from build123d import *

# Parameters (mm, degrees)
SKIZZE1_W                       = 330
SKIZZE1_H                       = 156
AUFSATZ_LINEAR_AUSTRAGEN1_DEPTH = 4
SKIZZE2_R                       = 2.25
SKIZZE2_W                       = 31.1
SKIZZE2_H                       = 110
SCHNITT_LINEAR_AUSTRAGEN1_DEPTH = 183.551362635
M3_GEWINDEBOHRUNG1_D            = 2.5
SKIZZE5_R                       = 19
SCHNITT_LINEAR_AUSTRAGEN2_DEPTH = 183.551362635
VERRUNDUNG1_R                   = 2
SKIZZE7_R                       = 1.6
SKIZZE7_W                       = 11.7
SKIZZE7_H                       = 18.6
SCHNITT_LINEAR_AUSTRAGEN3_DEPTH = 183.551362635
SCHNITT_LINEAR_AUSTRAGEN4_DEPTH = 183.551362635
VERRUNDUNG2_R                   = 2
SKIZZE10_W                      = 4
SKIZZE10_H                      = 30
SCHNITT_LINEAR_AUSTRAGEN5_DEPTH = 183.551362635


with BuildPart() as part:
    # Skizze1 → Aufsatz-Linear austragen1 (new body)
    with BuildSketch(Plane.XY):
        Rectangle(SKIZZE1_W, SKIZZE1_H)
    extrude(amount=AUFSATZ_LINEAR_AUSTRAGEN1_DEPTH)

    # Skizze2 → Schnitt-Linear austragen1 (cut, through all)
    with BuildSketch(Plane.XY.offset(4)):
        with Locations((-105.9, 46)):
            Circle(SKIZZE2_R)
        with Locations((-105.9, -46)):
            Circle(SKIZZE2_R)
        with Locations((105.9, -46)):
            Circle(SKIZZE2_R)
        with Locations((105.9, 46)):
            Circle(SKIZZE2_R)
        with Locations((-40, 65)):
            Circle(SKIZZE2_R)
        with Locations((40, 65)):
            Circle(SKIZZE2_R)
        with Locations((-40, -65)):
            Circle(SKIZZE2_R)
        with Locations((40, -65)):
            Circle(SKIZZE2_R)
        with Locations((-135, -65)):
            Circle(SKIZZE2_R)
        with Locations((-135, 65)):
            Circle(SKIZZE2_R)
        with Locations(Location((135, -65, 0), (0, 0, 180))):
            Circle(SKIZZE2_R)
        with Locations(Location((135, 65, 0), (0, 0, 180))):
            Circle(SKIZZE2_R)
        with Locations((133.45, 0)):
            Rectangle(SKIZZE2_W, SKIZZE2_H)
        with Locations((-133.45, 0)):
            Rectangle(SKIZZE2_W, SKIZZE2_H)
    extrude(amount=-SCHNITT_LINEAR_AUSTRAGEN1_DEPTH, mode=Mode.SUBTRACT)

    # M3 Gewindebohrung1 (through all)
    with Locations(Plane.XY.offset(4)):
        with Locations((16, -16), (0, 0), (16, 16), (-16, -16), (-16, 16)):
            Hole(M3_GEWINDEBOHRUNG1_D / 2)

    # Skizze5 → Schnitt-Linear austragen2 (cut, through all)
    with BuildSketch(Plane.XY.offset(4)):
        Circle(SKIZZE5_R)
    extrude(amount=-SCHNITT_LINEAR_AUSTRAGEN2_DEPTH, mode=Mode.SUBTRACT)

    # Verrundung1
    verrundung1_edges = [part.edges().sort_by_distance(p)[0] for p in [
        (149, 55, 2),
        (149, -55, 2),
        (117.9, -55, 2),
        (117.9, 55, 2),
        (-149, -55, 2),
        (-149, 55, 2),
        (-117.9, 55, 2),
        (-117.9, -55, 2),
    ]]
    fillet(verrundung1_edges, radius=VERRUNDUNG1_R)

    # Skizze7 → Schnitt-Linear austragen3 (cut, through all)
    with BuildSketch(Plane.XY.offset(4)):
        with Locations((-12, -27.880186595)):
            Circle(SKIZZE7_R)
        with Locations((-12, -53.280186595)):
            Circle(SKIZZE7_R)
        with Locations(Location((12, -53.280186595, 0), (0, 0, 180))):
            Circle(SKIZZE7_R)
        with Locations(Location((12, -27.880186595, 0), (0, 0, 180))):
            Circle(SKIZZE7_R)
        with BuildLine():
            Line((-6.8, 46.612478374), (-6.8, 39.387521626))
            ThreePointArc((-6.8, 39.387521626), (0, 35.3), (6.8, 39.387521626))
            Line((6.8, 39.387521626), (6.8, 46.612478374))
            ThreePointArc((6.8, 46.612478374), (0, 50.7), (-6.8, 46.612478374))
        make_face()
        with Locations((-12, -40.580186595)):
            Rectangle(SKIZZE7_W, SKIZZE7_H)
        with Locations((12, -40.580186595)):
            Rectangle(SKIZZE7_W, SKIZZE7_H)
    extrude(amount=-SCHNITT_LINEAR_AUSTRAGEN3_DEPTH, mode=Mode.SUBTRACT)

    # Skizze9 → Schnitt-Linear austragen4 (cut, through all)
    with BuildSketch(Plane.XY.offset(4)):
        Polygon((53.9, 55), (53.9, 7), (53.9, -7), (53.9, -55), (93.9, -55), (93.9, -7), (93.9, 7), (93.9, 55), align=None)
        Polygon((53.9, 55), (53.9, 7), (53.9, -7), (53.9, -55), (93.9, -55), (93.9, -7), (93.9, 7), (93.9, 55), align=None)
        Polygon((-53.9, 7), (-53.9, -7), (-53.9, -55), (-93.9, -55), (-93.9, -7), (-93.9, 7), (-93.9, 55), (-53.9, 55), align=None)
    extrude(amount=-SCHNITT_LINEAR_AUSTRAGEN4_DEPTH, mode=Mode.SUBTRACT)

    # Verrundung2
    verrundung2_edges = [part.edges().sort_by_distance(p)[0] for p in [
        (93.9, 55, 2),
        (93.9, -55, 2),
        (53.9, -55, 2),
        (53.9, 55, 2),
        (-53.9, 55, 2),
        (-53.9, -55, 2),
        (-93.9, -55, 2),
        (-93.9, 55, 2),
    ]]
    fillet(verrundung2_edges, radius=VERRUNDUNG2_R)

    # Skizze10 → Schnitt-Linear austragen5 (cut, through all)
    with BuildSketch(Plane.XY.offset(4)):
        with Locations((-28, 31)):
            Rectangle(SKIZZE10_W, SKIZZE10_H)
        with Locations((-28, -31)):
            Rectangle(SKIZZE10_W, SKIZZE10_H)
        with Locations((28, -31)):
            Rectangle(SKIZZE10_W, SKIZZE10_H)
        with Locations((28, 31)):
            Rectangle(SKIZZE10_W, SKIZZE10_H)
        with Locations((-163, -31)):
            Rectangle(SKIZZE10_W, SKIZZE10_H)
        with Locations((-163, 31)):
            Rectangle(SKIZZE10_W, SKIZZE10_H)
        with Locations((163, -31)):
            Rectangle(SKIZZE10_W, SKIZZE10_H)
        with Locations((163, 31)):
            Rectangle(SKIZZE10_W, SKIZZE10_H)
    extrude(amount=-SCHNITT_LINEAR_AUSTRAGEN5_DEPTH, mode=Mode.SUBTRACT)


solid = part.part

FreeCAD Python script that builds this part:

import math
import FreeCAD as App
import Part
import Sketcher

V = App.Vector
Q = App.Units.Quantity


def edges_at(feature, points):
    """Names of the edges that pass closest to the given points."""
    edges = feature.Shape.Edges
    near = lambda p: min(range(len(edges)), key=lambda i: edges[i].distToShape(Part.Vertex(*p))[0])
    return sorted({f"Edge{near(p) + 1}" for p in points})


def add_polygon(sketch, points):
    """Adds a closed chain of lines whose ends are joined by coincident constraints."""
    first, n = sketch.GeometryCount, len(points)
    for a, b in zip(points, points[1:] + points[:1]):
        sketch.addGeometry(Part.LineSegment(App.Vector(*a, 0), App.Vector(*b, 0)), False)
    for i in range(n):
        sketch.addConstraint(Sketcher.Constraint("Coincident", first + i, 2, first + (i + 1) % n, 1))

doc = App.newDocument("Part")
params = doc.addObject("Spreadsheet::Sheet", "Params")
for row, (alias, value) in enumerate([
    ("sketch1_width", "330 mm"),
    ("sketch1_height", "156 mm"),
    ("pad1_length", "4 mm"),
    ("sketch2_diameter", "4.5 mm"),
    ("sketch2_height", "110 mm"),
    ("sketch2_width", "31.1 mm"),
    ("sketch3_diameter", "2.5 mm"),
    ("hole_diameter", "2.5 mm"),
    ("sketch4_diameter", "38 mm"),
    ("fillet_radius", "2 mm"),
    ("sketch5_diameter", "3.2 mm"),
    ("sketch5_radius", "7.7 mm"),
    ("sketch5_width", "11.7 mm"),
    ("sketch5_height", "18.6 mm"),
    ("sketch6_width", "40 mm"),
    ("sketch6_height", "110 mm"),
    ("fillet2_radius", "2 mm"),
    ("sketch7_width", "4 mm"),
    ("sketch7_height", "30 mm"),
], start=1):
    params.set(f"A{row}", alias)
    params.set(f"B{row}", "=" + value)
    params.setAlias(f"B{row}", alias)

body = doc.addObject("PartDesign::Body", "Body")

sketch1 = body.newObject("Sketcher::SketchObject", "Sketch")
sketch1.AttachmentSupport = (doc.getObject("XY_Plane"), [""])
sketch1.MapMode = "FlatFace"
add_polygon(sketch1, [(-165, 78), (-165, -78), (165, -78), (165, 78)])
sketch1.addConstraint([
    Sketcher.Constraint("Vertical", 0),
    Sketcher.Constraint("Horizontal", 1),
    Sketcher.Constraint("Vertical", 2),
    Sketcher.Constraint("Horizontal", 3),
    Sketcher.Constraint("Symmetric", 0, 2, 2, 2, -1, 1),
    Sketcher.Constraint("DistanceX", 1, 1, 1, 2, Q("330 mm")),
    Sketcher.Constraint("DistanceY", 0, 2, 0, 1, Q("156 mm")),
])
sketch1.setExpression("Constraints[9]", "Params.sketch1_width")
sketch1.setExpression("Constraints[10]", "Params.sketch1_height")
pad1 = body.newObject("PartDesign::Pad", "Pad")
pad1.Profile = sketch1
pad1.setExpression("Length", "Params.pad1_length")

sketch2 = body.newObject("Sketcher::SketchObject", "Sketch001")
sketch2.AttachmentSupport = (doc.getObject("XY_Plane"), [""])
sketch2.MapMode = "FlatFace"
sketch2.AttachmentOffset = App.Placement(V(0, 0, 4), App.Rotation())
sketch2.addGeometry(Part.Circle(V(-105.9, 46, 0), V(0, 0, 1), 2.2), False)
sketch2.addGeometry(Part.Circle(V(-105.9, -46, 0), V(0, 0, 1), 2.2), False)
sketch2.addGeometry(Part.Circle(V(105.9, -46, 0), V(0, 0, 1), 2.2), False)
sketch2.addGeometry(Part.Circle(V(105.9, 46, 0), V(0, 0, 1), 2.2), False)
sketch2.addGeometry(Part.Circle(V(-40, 65, 0), V(0, 0, 1), 2.2), False)
sketch2.addGeometry(Part.Circle(V(40, 65, 0), V(0, 0, 1), 2.2), False)
sketch2.addGeometry(Part.Circle(V(-40, -65, 0), V(0, 0, 1), 2.2), False)
sketch2.addGeometry(Part.Circle(V(40, -65, 0), V(0, 0, 1), 2.2), False)
sketch2.addGeometry(Part.Circle(V(-135, -65, 0), V(0, 0, 1), 2.2), False)
sketch2.addGeometry(Part.Circle(V(-135, 65, 0), V(0, 0, 1), 2.2), False)
sketch2.addGeometry(Part.Circle(V(135, -65, 0), V(0, 0, 1), 2.2), False)
sketch2.addGeometry(Part.Circle(V(135, 65, 0), V(0, 0, 1), 2.2), False)
add_polygon(sketch2, [(117.9, 55), (117.9, -55), (149, -55), (149, 55)])
add_polygon(sketch2, [(-149, 55), (-149, -55), (-117.9, -55), (-117.9, 55)])
sketch2.addConstraint([
    Sketcher.Constraint("Vertical", 12),
    Sketcher.Constraint("Horizontal", 13),
    Sketcher.Constraint("Vertical", 14),
    Sketcher.Constraint("Horizontal", 15),
    Sketcher.Constraint("Vertical", 16),
    Sketcher.Constraint("Horizontal", 17),
    Sketcher.Constraint("Vertical", 18),
    Sketcher.Constraint("Horizontal", 19),
    Sketcher.Constraint("Equal", 0, 1),
    Sketcher.Constraint("Equal", 1, 2),
    Sketcher.Constraint("Equal", 2, 3),
    Sketcher.Constraint("Equal", 3, 4),
    Sketcher.Constraint("Equal", 4, 5),
    Sketcher.Constraint("Equal", 5, 6),
    Sketcher.Constraint("Equal", 6, 7),
    Sketcher.Constraint("Equal", 7, 8),
    Sketcher.Constraint("Equal", 8, 9),
    Sketcher.Constraint("Equal", 9, 10),
    Sketcher.Constraint("Equal", 10, 11),
    Sketcher.Constraint("Symmetric", 0, 3, 2, 3, -1, 1),
    Sketcher.Constraint("Symmetric", 1, 3, 3, 3, -1, 1),
    Sketcher.Constraint("Symmetric", 5, 3, 6, 3, -1, 1),
    Sketcher.Constraint("Symmetric", 4, 3, 7, 3, -1, 1),
    Sketcher.Constraint("Symmetric", 9, 3, 10, 3, -1, 1),
    Sketcher.Constraint("Symmetric", 8, 3, 11, 3, -1, 1),
    Sketcher.Constraint("Symmetric", 14, 2, 16, 2, -1, 1),
    Sketcher.Constraint("Symmetric", 12, 2, 18, 2, -1, 1),
    Sketcher.Constraint("Symmetric", 1, 3, 2, 3, -2),
    Sketcher.Constraint("Symmetric", 4, 3, 5, 3, -2),
    Sketcher.Constraint("Symmetric", 8, 3, 10, 3, -2),
    Sketcher.Constraint("Horizontal", 7, 3, 8, 3),
    Sketcher.Constraint("Horizontal", 13, 2, 16, 2),
    Sketcher.Constraint("Diameter", 0, Q("4.5 mm")),
    Sketcher.Constraint("DistanceY", 12, 2, 12, 1, Q("110 mm")),
    Sketcher.Constraint("DistanceX", 13, 1, 13, 2, Q("31.1 mm")),
    Sketcher.Constraint("DistanceY", -1, 1, 0, 3, Q("46 mm")),
    Sketcher.Constraint("DistanceX", 4, 3, -1, 1, Q("40 mm")),
    Sketcher.Constraint("DistanceY", -1, 1, 4, 3, Q("65 mm")),
    Sketcher.Constraint("DistanceX", 8, 3, -1, 1, Q("135 mm")),
    Sketcher.Constraint("DistanceX", -1, 1, 13, 2, Q("149 mm")),
    Sketcher.Constraint("DistanceX", 2, 3, 12, 2, Q("12 mm")),
])
sketch2.setExpression("Constraints[40]", "Params.sketch2_diameter")
sketch2.setExpression("Constraints[41]", "Params.sketch2_height")
sketch2.setExpression("Constraints[42]", "Params.sketch2_width")
pocket1 = body.newObject("PartDesign::Pocket", "Pocket")
pocket1.Profile = sketch2
pocket1.Type = "ThroughAll"

sketch3 = body.newObject("Sketcher::SketchObject", "Sketch002")
sketch3.AttachmentSupport = (doc.getObject("XY_Plane"), [""])
sketch3.MapMode = "FlatFace"
sketch3.AttachmentOffset = App.Placement(V(0, 0, 4), App.Rotation())
sketch3.addGeometry([
    Part.Circle(V(16, -16, 0), V(0, 0, 1), 1.2),
    Part.Circle(V(0, 0, 0), V(0, 0, 1), 1.2),
    Part.Circle(V(16, 16, 0), V(0, 0, 1), 1.2),
    Part.Circle(V(-16, -16, 0), V(0, 0, 1), 1.2),
    Part.Circle(V(-16, 16, 0), V(0, 0, 1), 1.2),
], False)
sketch3.addConstraint([
    Sketcher.Constraint("Coincident", 1, 3, -1, 1),
    Sketcher.Constraint("Equal", 0, 1),
    Sketcher.Constraint("Equal", 1, 2),
    Sketcher.Constraint("Equal", 2, 3),
    Sketcher.Constraint("Equal", 3, 4),
    Sketcher.Constraint("Symmetric", 2, 3, 3, 3, -1, 1),
    Sketcher.Constraint("Symmetric", 0, 3, 4, 3, -1, 1),
    Sketcher.Constraint("Symmetric", 0, 3, 3, 3, -2),
    Sketcher.Constraint("Diameter", 0, Q("2.5 mm")),
    Sketcher.Constraint("DistanceX", -1, 1, 0, 3, Q("16 mm")),
    Sketcher.Constraint("DistanceY", 0, 3, -1, 1, Q("16 mm")),
])
sketch3.setExpression("Constraints[8]", "Params.sketch3_diameter")
doc.recompute()
hole = body.newObject("PartDesign::Hole", "Hole")
hole.Profile = sketch3
hole.ThreadType = "None"
hole.setExpression("Diameter", "Params.hole_diameter")
hole.DepthType = "ThroughAll"

sketch4 = body.newObject("Sketcher::SketchObject", "Sketch003")
sketch4.AttachmentSupport = (doc.getObject("XY_Plane"), [""])
sketch4.MapMode = "FlatFace"
sketch4.AttachmentOffset = App.Placement(V(0, 0, 4), App.Rotation())
sketch4.addGeometry(Part.Circle(V(0, 0, 0), V(0, 0, 1), 19), False)
sketch4.addConstraint([
    Sketcher.Constraint("Coincident", 0, 3, -1, 1),
    Sketcher.Constraint("Diameter", 0, Q("38 mm")),
])
sketch4.setExpression("Constraints[1]", "Params.sketch4_diameter")
pocket2 = body.newObject("PartDesign::Pocket", "Pocket001")
pocket2.Profile = sketch4
pocket2.Type = "ThroughAll"
doc.recompute()

fillet = body.newObject("PartDesign::Fillet", "Fillet")
fillet.Base = (pocket2, edges_at(pocket2, [
    (149, 55, 2),
    (149, -55, 2),
    (117.9, -55, 2),
    (117.9, 55, 2),
    (-149, -55, 2),
    (-149, 55, 2),
    (-117.9, 55, 2),
    (-117.9, -55, 2),
]))
fillet.setExpression("Radius", "Params.fillet_radius")

sketch5 = body.newObject("Sketcher::SketchObject", "Sketch004")
sketch5.AttachmentSupport = (doc.getObject("XY_Plane"), [""])
sketch5.MapMode = "FlatFace"
sketch5.AttachmentOffset = App.Placement(V(0, 0, 4), App.Rotation())
sketch5.addGeometry(Part.Circle(V(-12, -27.9, 0), V(0, 0, 1), 1.6), False)
sketch5.addGeometry(Part.Circle(V(-12, -53.3, 0), V(0, 0, 1), 1.6), False)
sketch5.addGeometry(Part.Circle(V(12, -53.3, 0), V(0, 0, 1), 1.6), False)
sketch5.addGeometry(Part.Circle(V(12, -27.9, 0), V(0, 0, 1), 1.6), False)
sketch5.addGeometry(Part.LineSegment(V(-6.8, 46.6, 0), V(-6.8, 39.4, 0)), False)
sketch5.addGeometry(Part.ArcOfCircle(Part.Circle(V(0, 43, 0), V(0, 0, 1), 7.7), math.radians(-152), math.radians(-28)), False)
sketch5.addGeometry(Part.LineSegment(V(6.8, 39.4, 0), V(6.8, 46.6, 0)), False)
sketch5.addGeometry(Part.ArcOfCircle(Part.Circle(V(0, 43, 0), V(0, 0, 1), 7.7), math.radians(28), math.radians(152)), False)
add_polygon(sketch5, [(-17.9, -31.3), (-17.9, -49.9), (-6.2, -49.9), (-6.2, -31.3)])
add_polygon(sketch5, [(6.2, -31.3), (6.2, -49.9), (17.9, -49.9), (17.9, -31.3)])
sketch5.addConstraint([
    Sketcher.Constraint("Coincident", 4, 2, 5, 1),
    Sketcher.Constraint("Coincident", 5, 2, 6, 1),
    Sketcher.Constraint("Coincident", 6, 2, 7, 1),
    Sketcher.Constraint("Coincident", 7, 2, 4, 1),
    Sketcher.Constraint("Vertical", 4),
    Sketcher.Constraint("Vertical", 6),
    Sketcher.Constraint("Vertical", 8),
    Sketcher.Constraint("Horizontal", 9),
    Sketcher.Constraint("Vertical", 10),
    Sketcher.Constraint("Horizontal", 11),
    Sketcher.Constraint("Vertical", 12),
    Sketcher.Constraint("Horizontal", 13),
    Sketcher.Constraint("Vertical", 14),
    Sketcher.Constraint("Horizontal", 15),
    Sketcher.Constraint("Coincident", 7, 3, 5, 3),
    Sketcher.Constraint("Equal", 0, 1),
    Sketcher.Constraint("Equal", 1, 2),
    Sketcher.Constraint("Equal", 2, 3),
    Sketcher.Constraint("Equal", 5, 7),
    Sketcher.Constraint("Symmetric", 1, 3, 2, 3, -2),
    Sketcher.Constraint("Symmetric", 0, 3, 3, 3, -2),
    Sketcher.Constraint("Symmetric", 4, 2, 5, 2, -2),
    Sketcher.Constraint("Symmetric", 9, 2, 12, 2, -2),
    Sketcher.Constraint("Symmetric", 11, 2, 14, 2, -2),
    Sketcher.Constraint("Vertical", 0, 3, 1, 3),
    Sketcher.Constraint("Diameter", 0, Q("3.2 mm")),
    Sketcher.Constraint("Radius", 5, Q("7.7 mm")),
    Sketcher.Constraint("DistanceX", 9, 1, 9, 2, Q("11.7 mm")),
    Sketcher.Constraint("DistanceY", 8, 2, 8, 1, Q("18.6 mm")),
    Sketcher.Constraint("DistanceX", 0, 3, -1, 1, Q("12 mm")),
    Sketcher.Constraint("DistanceY", -1, 1, 5, 3, Q("43 mm")),
    Sketcher.Constraint("DistanceY", 8, 2, 0, 3, Q("22 mm")),
    Sketcher.Constraint("DistanceY", 1, 3, 10, 2, Q("22 mm")),
    Sketcher.Constraint("DistanceX", 9, 2, 13, 2, Q("24 mm")),
    Sketcher.Constraint("DistanceX", 4, 2, -1, 1, Q("6.8 mm")),
    Sketcher.Constraint("DistanceY", 0, 3, 4, 2, Q("67.267708 mm")),
])
sketch5.setExpression("Constraints[33]", "Params.sketch5_diameter")
sketch5.setExpression("Constraints[34]", "Params.sketch5_radius")
sketch5.setExpression("Constraints[35]", "Params.sketch5_width")
sketch5.setExpression("Constraints[36]", "Params.sketch5_height")
pocket3 = body.newObject("PartDesign::Pocket", "Pocket002")
pocket3.Profile = sketch5
pocket3.Type = "ThroughAll"

sketch6 = body.newObject("Sketcher::SketchObject", "Sketch005")
sketch6.AttachmentSupport = (doc.getObject("XY_Plane"), [""])
sketch6.MapMode = "FlatFace"
sketch6.AttachmentOffset = App.Placement(V(0, 0, 4), App.Rotation())
add_polygon(sketch6, [(54, 55), (54, -55), (94, -55), (94, 55)])
add_polygon(sketch6, [(-54, -55), (-54, 55), (-94, 55), (-94, -55)])
sketch6.addConstraint([
    Sketcher.Constraint("Vertical", 0),
    Sketcher.Constraint("Horizontal", 1),
    Sketcher.Constraint("Vertical", 2),
    Sketcher.Constraint("Horizontal", 3),
    Sketcher.Constraint("Vertical", 4),
    Sketcher.Constraint("Horizontal", 5),
    Sketcher.Constraint("Vertical", 6),
    Sketcher.Constraint("Horizontal", 7),
    Sketcher.Constraint("Symmetric", 0, 2, 4, 2, -1, 1),
    Sketcher.Constraint("Symmetric", 2, 2, 6, 2, -1, 1),
    Sketcher.Constraint("Horizontal", 3, 2, 4, 2),
    Sketcher.Constraint("DistanceX", 1, 1, 1, 2, Q("40 mm")),
    Sketcher.Constraint("DistanceY", 0, 2, 0, 1, Q("110 mm")),
    Sketcher.Constraint("DistanceX", -1, 1, 0, 2, Q("53.9 mm")),
])
sketch6.setExpression("Constraints[19]", "Params.sketch6_width")
sketch6.setExpression("Constraints[20]", "Params.sketch6_height")
pocket4 = body.newObject("PartDesign::Pocket", "Pocket003")
pocket4.Profile = sketch6
pocket4.Type = "ThroughAll"
doc.recompute()

fillet2 = body.newObject("PartDesign::Fillet", "Fillet001")
fillet2.Base = (pocket4, edges_at(pocket4, [
    (93.9, 55, 2),
    (93.9, -55, 2),
    (53.9, -55, 2),
    (53.9, 55, 2),
    (-53.9, 55, 2),
    (-53.9, -55, 2),
    (-93.9, -55, 2),
    (-93.9, 55, 2),
]))
fillet2.setExpression("Radius", "Params.fillet2_radius")

sketch7 = body.newObject("Sketcher::SketchObject", "Sketch006")
sketch7.AttachmentSupport = (doc.getObject("XY_Plane"), [""])
sketch7.MapMode = "FlatFace"
sketch7.AttachmentOffset = App.Placement(V(0, 0, 4), App.Rotation())
add_polygon(sketch7, [(-30, 46), (-30, 16), (-26, 16), (-26, 46)])
add_polygon(sketch7, [(-30, -16), (-30, -46), (-26, -46), (-26, -16)])
add_polygon(sketch7, [(26, -16), (26, -46), (30, -46), (30, -16)])
add_polygon(sketch7, [(26, 46), (26, 16), (30, 16), (30, 46)])
add_polygon(sketch7, [(-165, -16), (-165, -46), (-161, -46), (-161, -16)])
add_polygon(sketch7, [(-165, 46), (-165, 16), (-161, 16), (-161, 46)])
add_polygon(sketch7, [(161, -16), (161, -46), (165, -46), (165, -16)])
add_polygon(sketch7, [(161, 46), (161, 16), (165, 16), (165, 46)])
sketch7.addConstraint([
    Sketcher.Constraint("Vertical", 0),
    Sketcher.Constraint("Horizontal", 1),
    Sketcher.Constraint("Vertical", 2),
    Sketcher.Constraint("Horizontal", 3),
    Sketcher.Constraint("Vertical", 4),
    Sketcher.Constraint("Horizontal", 5),
    Sketcher.Constraint("Vertical", 6),
    Sketcher.Constraint("Horizontal", 7),
    Sketcher.Constraint("Vertical", 8),
    Sketcher.Constraint("Horizontal", 9),
    Sketcher.Constraint("Vertical", 10),
    Sketcher.Constraint("Horizontal", 11),
    Sketcher.Constraint("Vertical", 12),
    Sketcher.Constraint("Horizontal", 13),
    Sketcher.Constraint("Vertical", 14),
    Sketcher.Constraint("Horizontal", 15),
    Sketcher.Constraint("Vertical", 16),
    Sketcher.Constraint("Horizontal", 17),
    Sketcher.Constraint("Vertical", 18),
    Sketcher.Constraint("Horizontal", 19),
    Sketcher.Constraint("Vertical", 20),
    Sketcher.Constraint("Horizontal", 21),
    Sketcher.Constraint("Vertical", 22),
    Sketcher.Constraint("Horizontal", 23),
    Sketcher.Constraint("Vertical", 24),
    Sketcher.Constraint("Horizontal", 25),
    Sketcher.Constraint("Vertical", 26),
    Sketcher.Constraint("Horizontal", 27),
    Sketcher.Constraint("Vertical", 28),
    Sketcher.Constraint("Horizontal", 29),
    Sketcher.Constraint("Vertical", 30),
    Sketcher.Constraint("Horizontal", 31),
    Sketcher.Constraint("Symmetric", 2, 2, 8, 2, -1, 1),
    Sketcher.Constraint("Symmetric", 0, 2, 10, 2, -1, 1),
    Sketcher.Constraint("Symmetric", 6, 2, 12, 2, -1, 1),
    Sketcher.Constraint("Symmetric", 4, 2, 14, 2, -1, 1),
    Sketcher.Constraint("Symmetric", 22, 2, 24, 2, -1, 1),
    Sketcher.Constraint("Symmetric", 20, 2, 26, 2, -1, 1),
    Sketcher.Constraint("Symmetric", 18, 2, 28, 2, -1, 1),
    Sketcher.Constraint("Symmetric", 16, 2, 30, 2, -1, 1),
    Sketcher.Constraint("Symmetric", 5, 2, 8, 2, -2),
    Sketcher.Constraint("Symmetric", 7, 2, 10, 2, -2),
    Sketcher.Constraint("Symmetric", 17, 2, 24, 2, -2),
    Sketcher.Constraint("Symmetric", 19, 2, 26, 2, -2),
    Sketcher.Constraint("Horizontal", 9, 2, 16, 2),
    Sketcher.Constraint("Horizontal", 11, 2, 18, 2),
    Sketcher.Constraint("Equal", 15, 17),
    Sketcher.Constraint("DistanceX", 1, 1, 1, 2, Q("4 mm")),
    Sketcher.Constraint("DistanceY", 0, 2, 0, 1, Q("30 mm")),
    Sketcher.Constraint("DistanceX", 0, 2, -1, 1, Q("30 mm")),
    Sketcher.Constraint("DistanceY", -1, 1, 0, 2, Q("16 mm")),
    Sketcher.Constraint("DistanceX", 16, 2, -1, 1, Q("165 mm")),
])
sketch7.setExpression("Constraints[79]", "Params.sketch7_width")
sketch7.setExpression("Constraints[80]", "Params.sketch7_height")
pocket5 = body.newObject("PartDesign::Pocket", "Pocket004")
pocket5.Profile = sketch7
pocket5.Type = "ThroughAll"

doc.recompute()
